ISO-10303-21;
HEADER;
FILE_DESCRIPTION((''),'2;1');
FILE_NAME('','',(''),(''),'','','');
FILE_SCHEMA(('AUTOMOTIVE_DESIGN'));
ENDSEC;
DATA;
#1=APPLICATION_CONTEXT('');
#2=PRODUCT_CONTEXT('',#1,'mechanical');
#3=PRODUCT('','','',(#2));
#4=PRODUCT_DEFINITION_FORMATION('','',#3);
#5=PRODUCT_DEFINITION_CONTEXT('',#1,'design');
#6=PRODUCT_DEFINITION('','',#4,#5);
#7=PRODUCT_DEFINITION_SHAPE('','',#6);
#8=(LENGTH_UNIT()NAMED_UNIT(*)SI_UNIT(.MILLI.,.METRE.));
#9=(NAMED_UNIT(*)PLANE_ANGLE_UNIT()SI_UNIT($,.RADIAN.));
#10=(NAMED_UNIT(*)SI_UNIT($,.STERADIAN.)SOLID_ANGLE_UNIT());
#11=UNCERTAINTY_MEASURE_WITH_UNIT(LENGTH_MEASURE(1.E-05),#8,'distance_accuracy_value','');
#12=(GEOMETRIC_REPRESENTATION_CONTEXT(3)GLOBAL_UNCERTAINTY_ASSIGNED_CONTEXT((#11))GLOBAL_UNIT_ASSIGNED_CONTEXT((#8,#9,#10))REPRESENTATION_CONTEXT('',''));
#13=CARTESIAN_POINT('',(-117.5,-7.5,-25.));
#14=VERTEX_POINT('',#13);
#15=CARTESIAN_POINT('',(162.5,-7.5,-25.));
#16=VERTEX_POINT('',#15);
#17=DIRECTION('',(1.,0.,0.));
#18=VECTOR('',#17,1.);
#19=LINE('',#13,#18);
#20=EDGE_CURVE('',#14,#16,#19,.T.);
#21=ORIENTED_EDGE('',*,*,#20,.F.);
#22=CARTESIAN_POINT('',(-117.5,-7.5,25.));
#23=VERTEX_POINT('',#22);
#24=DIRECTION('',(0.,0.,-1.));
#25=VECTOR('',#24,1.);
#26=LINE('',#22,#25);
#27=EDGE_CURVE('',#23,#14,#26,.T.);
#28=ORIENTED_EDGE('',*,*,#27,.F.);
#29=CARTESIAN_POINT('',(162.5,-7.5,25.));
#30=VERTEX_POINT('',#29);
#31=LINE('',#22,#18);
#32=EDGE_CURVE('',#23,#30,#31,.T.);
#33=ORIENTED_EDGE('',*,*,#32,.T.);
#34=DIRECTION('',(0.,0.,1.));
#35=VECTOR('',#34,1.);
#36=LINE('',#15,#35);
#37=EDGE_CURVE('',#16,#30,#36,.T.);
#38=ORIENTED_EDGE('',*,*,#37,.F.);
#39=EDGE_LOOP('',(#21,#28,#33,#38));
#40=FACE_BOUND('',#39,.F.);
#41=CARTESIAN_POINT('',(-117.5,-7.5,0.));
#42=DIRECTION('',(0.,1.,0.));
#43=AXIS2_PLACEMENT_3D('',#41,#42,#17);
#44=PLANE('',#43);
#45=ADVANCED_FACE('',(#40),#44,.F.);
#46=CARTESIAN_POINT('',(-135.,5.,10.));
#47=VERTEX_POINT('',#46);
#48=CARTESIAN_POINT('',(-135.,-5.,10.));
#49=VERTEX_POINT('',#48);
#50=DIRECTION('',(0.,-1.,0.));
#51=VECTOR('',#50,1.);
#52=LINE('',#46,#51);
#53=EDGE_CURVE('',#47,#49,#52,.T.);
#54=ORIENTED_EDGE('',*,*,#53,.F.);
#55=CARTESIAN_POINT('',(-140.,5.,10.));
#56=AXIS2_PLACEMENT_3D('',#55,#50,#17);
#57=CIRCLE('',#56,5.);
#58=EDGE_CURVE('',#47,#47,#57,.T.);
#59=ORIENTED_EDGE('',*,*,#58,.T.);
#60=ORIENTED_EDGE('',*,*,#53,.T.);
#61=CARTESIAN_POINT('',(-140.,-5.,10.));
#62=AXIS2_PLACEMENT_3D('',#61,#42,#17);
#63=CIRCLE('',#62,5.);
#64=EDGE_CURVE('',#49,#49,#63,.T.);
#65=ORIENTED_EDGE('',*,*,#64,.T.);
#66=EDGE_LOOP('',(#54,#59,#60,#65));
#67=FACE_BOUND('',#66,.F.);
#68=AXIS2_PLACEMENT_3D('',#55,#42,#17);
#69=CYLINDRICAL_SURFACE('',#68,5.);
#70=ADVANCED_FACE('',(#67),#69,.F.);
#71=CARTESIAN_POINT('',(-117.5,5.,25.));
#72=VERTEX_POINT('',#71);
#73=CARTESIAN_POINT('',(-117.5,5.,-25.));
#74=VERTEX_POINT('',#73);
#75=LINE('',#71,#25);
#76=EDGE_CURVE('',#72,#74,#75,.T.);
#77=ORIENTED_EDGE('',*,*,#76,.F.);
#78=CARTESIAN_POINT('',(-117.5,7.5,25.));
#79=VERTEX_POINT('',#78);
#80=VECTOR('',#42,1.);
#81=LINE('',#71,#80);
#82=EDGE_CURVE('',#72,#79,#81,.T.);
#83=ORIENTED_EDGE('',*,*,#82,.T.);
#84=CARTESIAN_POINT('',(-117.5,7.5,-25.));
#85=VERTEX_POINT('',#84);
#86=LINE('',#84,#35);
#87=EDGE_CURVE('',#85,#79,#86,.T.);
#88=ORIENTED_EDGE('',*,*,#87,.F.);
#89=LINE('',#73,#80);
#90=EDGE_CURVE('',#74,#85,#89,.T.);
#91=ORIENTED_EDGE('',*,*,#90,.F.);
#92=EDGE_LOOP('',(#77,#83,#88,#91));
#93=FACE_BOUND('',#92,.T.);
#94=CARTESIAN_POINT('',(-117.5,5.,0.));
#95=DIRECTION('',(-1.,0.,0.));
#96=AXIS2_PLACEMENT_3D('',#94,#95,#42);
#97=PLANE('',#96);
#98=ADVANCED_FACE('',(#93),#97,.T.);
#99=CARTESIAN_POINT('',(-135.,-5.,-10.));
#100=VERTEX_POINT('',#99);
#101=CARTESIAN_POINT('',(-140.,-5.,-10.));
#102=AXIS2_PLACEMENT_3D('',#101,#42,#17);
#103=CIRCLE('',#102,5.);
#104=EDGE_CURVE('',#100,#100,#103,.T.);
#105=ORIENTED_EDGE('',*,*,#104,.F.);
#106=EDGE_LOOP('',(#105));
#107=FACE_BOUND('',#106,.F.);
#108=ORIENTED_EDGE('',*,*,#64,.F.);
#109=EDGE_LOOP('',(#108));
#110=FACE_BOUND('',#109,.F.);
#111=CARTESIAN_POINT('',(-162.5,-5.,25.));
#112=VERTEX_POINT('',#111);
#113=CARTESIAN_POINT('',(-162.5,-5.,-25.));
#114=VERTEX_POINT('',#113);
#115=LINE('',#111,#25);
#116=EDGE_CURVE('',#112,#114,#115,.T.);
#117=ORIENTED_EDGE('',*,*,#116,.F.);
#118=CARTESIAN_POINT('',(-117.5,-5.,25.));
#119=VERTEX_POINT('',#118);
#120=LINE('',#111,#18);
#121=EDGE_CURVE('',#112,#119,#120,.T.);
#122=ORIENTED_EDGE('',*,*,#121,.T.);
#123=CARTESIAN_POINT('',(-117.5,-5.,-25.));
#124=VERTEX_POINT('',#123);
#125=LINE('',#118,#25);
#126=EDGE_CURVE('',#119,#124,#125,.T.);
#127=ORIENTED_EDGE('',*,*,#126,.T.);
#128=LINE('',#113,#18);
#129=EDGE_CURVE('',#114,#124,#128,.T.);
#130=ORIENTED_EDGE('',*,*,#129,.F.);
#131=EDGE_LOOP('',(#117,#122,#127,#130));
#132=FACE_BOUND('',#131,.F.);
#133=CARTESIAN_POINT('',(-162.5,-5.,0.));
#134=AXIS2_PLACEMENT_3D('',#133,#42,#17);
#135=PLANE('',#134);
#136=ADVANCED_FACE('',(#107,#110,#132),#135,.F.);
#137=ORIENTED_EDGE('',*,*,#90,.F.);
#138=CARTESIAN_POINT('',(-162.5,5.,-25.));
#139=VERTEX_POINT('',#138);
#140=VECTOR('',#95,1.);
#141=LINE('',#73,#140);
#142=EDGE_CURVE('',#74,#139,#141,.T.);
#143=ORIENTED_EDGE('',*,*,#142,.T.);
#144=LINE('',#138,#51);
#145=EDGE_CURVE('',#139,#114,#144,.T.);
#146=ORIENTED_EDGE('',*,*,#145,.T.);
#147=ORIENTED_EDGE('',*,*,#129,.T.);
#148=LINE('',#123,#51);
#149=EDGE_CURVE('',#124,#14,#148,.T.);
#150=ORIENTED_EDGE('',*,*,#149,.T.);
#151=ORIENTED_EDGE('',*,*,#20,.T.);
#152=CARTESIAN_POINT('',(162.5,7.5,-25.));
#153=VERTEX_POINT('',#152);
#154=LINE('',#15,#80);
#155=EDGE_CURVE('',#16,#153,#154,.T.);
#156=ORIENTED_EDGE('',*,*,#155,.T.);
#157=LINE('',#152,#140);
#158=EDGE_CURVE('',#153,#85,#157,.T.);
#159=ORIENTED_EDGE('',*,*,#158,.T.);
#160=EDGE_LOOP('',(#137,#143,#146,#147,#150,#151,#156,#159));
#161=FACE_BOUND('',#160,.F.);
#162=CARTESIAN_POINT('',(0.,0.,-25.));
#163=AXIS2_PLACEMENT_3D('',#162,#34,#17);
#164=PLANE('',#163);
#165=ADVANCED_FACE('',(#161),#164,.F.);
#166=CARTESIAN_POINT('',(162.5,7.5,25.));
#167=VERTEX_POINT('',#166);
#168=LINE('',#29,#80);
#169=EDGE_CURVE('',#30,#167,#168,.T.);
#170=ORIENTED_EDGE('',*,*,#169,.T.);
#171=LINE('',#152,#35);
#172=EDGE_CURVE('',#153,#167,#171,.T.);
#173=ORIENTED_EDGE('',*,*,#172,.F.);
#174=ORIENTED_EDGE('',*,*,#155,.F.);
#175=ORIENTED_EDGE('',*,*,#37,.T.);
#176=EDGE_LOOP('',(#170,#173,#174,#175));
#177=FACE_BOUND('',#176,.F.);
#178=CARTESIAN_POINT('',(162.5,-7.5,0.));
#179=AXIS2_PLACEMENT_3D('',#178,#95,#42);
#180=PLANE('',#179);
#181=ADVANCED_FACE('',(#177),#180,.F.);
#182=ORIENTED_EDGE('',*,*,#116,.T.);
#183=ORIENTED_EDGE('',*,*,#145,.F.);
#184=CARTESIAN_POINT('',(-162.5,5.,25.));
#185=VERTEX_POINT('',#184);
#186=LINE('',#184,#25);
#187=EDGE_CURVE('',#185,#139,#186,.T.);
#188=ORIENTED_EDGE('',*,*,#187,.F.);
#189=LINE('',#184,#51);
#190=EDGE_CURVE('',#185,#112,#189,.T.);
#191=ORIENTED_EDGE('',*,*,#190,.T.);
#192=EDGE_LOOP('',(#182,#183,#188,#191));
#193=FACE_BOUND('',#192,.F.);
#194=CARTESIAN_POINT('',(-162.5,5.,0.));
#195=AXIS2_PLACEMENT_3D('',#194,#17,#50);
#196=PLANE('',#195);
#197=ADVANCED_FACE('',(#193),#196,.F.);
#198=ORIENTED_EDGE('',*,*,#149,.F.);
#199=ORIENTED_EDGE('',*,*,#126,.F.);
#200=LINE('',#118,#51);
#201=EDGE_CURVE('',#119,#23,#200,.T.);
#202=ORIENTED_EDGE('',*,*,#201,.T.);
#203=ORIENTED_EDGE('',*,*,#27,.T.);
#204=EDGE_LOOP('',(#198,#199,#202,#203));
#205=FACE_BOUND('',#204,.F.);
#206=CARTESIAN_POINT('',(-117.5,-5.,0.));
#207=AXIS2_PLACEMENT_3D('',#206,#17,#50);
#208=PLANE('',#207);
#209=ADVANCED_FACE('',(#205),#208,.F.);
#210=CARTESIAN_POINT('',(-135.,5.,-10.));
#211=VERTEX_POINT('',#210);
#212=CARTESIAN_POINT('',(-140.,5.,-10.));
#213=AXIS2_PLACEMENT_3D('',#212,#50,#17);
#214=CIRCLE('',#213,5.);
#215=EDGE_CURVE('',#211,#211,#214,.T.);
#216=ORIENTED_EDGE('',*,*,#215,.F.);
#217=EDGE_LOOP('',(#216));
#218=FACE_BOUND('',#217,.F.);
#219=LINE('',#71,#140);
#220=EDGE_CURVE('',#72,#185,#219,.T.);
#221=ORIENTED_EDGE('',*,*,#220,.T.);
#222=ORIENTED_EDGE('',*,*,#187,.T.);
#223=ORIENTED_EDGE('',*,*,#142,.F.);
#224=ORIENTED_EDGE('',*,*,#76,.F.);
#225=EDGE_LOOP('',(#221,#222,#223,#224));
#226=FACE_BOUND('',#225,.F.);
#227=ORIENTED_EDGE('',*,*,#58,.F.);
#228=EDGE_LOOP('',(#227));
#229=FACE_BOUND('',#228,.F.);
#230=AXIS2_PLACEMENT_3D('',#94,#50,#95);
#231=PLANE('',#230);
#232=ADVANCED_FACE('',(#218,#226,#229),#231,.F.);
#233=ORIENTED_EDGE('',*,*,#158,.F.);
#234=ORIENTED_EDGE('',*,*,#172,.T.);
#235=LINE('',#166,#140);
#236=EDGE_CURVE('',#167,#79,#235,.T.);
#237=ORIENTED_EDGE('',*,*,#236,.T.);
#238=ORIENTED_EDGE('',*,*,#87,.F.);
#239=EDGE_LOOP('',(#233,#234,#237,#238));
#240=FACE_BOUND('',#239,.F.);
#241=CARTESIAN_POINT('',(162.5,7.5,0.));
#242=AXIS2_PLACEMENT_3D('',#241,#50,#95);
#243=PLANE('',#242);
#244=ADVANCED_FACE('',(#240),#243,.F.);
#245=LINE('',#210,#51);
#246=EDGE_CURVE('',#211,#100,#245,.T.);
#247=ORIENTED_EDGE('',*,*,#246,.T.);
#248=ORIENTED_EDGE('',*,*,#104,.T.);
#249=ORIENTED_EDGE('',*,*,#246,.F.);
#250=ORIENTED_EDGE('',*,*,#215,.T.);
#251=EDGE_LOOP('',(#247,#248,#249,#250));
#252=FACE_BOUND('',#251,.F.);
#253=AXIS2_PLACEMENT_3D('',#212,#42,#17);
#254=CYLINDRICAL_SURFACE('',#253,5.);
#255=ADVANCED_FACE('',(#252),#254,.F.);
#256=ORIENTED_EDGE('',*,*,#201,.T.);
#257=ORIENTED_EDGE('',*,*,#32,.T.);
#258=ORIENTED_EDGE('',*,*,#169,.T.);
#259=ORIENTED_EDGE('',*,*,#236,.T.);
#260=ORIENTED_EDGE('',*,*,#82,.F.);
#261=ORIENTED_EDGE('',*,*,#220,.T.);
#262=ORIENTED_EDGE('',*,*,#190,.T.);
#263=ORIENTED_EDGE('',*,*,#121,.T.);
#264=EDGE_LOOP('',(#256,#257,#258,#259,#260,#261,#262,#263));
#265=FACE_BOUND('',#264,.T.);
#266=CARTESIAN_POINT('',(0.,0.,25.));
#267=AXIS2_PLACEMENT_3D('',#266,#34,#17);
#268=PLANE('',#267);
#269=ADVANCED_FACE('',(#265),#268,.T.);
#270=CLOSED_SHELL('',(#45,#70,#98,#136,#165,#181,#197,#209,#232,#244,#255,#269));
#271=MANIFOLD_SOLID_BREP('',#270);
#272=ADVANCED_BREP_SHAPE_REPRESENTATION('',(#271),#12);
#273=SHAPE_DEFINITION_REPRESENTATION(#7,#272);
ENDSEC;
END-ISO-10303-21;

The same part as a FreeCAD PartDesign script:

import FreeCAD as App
import Part
import Sketcher
from FreeCAD import Vector

doc = App.newDocument("Part")
body = doc.addObject("PartDesign::Body", "Body")

sketch1 = doc.addObject("Sketcher::SketchObject", "Sketch")
body.addObject(sketch1)
sketch1.AttachmentSupport = (doc.XY_Plane, [""])
sketch1.MapMode = "FlatFace"
sketch1.addGeometry([
    Part.LineSegment(Vector(-117.5, -7.5, 0), Vector(162.5, -7.5, 0)),
    Part.LineSegment(Vector(162.5, -7.5, 0), Vector(162.5, 7.5, 0)),
    Part.LineSegment(Vector(162.5, 7.5, 0), Vector(-117.5, 7.5, 0)),
    Part.LineSegment(Vector(-117.5, 7.5, 0), Vector(-117.5, 5, 0)),
    Part.LineSegment(Vector(-117.5, 5, 0), Vector(-162.5, 5, 0)),
    Part.LineSegment(Vector(-162.5, 5, 0), Vector(-162.5, -5, 0)),
    Part.LineSegment(Vector(-162.5, -5, 0), Vector(-117.5, -5, 0)),
    Part.LineSegment(Vector(-117.5, -5, 0), Vector(-117.5, -7.5, 0)),
], False)
sketch1.addConstraint([
    Sketcher.Constraint("Coincident", 0, 2, 1, 1),
    Sketcher.Constraint("Coincident", 1, 2, 2, 1),
    Sketcher.Constraint("Coincident", 2, 2, 3, 1),
    Sketcher.Constraint("Coincident", 3, 2, 4, 1),
    Sketcher.Constraint("Coincident", 4, 2, 5, 1),
    Sketcher.Constraint("Coincident", 5, 2, 6, 1),
    Sketcher.Constraint("Coincident", 6, 2, 7, 1),
    Sketcher.Constraint("Coincident", 7, 2, 0, 1),
    Sketcher.Constraint("Horizontal", 0),
    Sketcher.Constraint("Vertical", 1),
    Sketcher.Constraint("Horizontal", 2),
    Sketcher.Constraint("Vertical", 3),
    Sketcher.Constraint("Horizontal", 4),
    Sketcher.Constraint("Vertical", 5),
    Sketcher.Constraint("Horizontal", 6),
    Sketcher.Constraint("Vertical", 7),
    Sketcher.Constraint("Symmetric", 3, 2, 6, 2, -1),
    Sketcher.Constraint("Equal", 3, 7),
    Sketcher.Constraint("DistanceX", 4, 2, 4, 1, 45.0),
    Sketcher.Constraint("DistanceY", 1, 1, 1, 2, 15.0),
    Sketcher.Constraint("DistanceY", 5, 2, 5, 1, 10.0),
    Sketcher.Constraint("DistanceX", 4, 2, 1, 2, 325.0),
    Sketcher.Constraint("DistanceX", -1, 1, 0, 2, 162.5),
])
pad1 = doc.addObject("PartDesign::Pad", "Pad")
body.addObject(pad1)
pad1.Profile = sketch1
pad1.Length = 50
pad1.Midplane = True

sketch2 = doc.addObject("Sketcher::SketchObject", "Sketch001")
body.addObject(sketch2)
sketch2.AttachmentSupport = (doc.XZ_Plane, [""])
sketch2.MapMode = "FlatFace"
sketch2.AttachmentOffset = App.Placement(Vector(0, 0, -5), App.Rotation())
sketch2.addGeometry([
    Part.Circle(Vector(-140, -10, 0), Vector(0, 0, 1), 5),
    Part.Circle(Vector(-140, 10, 0), Vector(0, 0, 1), 5),
], False)
sketch2.addConstraint([
    Sketcher.Constraint("Equal", 0, 1),
    Sketcher.Constraint("Symmetric", 0, 3, 1, 3, -1),
    Sketcher.Constraint("Diameter", 0, 10.0),
    Sketcher.Constraint("DistanceY", 0, 3, -1, 1, 10.0),
    Sketcher.Constraint("DistanceX", 0, 3, -1, 1, 140.0),
])
pocket1 = doc.addObject("PartDesign::Pocket", "Pocket")
body.addObject(pocket1)
pocket1.Profile = sketch2
pocket1.Length = 10
pocket1.Reversed = True

doc.recompute()
